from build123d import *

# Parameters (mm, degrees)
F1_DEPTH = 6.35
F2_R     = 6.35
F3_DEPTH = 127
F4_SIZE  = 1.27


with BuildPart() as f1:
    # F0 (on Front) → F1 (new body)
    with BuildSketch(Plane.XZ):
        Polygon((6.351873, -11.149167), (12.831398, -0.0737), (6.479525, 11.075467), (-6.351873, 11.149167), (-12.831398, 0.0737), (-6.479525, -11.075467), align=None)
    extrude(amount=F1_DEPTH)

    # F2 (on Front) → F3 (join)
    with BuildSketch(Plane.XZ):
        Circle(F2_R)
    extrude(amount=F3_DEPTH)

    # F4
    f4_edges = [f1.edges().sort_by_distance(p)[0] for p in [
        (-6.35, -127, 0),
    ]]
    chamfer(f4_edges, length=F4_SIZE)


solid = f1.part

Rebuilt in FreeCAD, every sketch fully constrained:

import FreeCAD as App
import Part
import Sketcher
from FreeCAD import Vector
Q = App.Units.Quantity


def edges_at(feature, points):
    """Names of the edges that pass closest to the given points."""
    edges = feature.Shape.Edges
    near = lambda p: min(range(len(edges)), key=lambda i: edges[i].distToShape(Part.Vertex(*p))[0])
    return sorted({f"Edge{near(p) + 1}" for p in points})

doc = App.newDocument("Part")
body = doc.addObject("PartDesign::Body", "Body")

sketch1 = body.newObject("Sketcher::SketchObject", "Sketch")
sketch1.AttachmentSupport = (doc.getObject("XZ_Plane"), [""])
sketch1.MapMode = "FlatFace"
sketch1.addGeometry([
    Part.LineSegment(Vector(6, -11, 0), Vector(13, 0, 0)),
    Part.LineSegment(Vector(13, 0, 0), Vector(6, 11, 0)),
    Part.LineSegment(Vector(6, 11, 0), Vector(-6, 11, 0)),
    Part.LineSegment(Vector(-6, 11, 0), Vector(-13, 0, 0)),
    Part.LineSegment(Vector(-13, 0, 0), Vector(-6, -11, 0)),
    Part.LineSegment(Vector(-6, -11, 0), Vector(6, -11, 0)),
], False)
sketch1.addConstraint([
    Sketcher.Constraint("Coincident", 0, 2, 1, 1),
    Sketcher.Constraint("Coincident", 1, 2, 2, 1),
    Sketcher.Constraint("Coincident", 2, 2, 3, 1),
    Sketcher.Constraint("Coincident", 3, 2, 4, 1),
    Sketcher.Constraint("Coincident", 4, 2, 5, 1),
    Sketcher.Constraint("Coincident", 5, 2, 0, 1),
    Sketcher.Constraint("Symmetric", 0, 2, 3, 2, -1, 1),
    Sketcher.Constraint("Symmetric", 1, 2, 4, 2, -1, 1),
    Sketcher.Constraint("Symmetric", 2, 2, 5, 2, -1, 1),
    Sketcher.Constraint("Equal", 0, 1),
    Sketcher.Constraint("Equal", 1, 2),
    Sketcher.Constraint("DistanceY", 0, 2, -1, 1, Q("0.0737 mm")),
    Sketcher.Constraint("DistanceY", 1, 2, 2, 2, Q("0.0737 mm")),
    Sketcher.Constraint("Distance", 0, Q("12.83161 mm")),
    Sketcher.Constraint("DistanceX", 2, 2, 0, 2, Q("19.183271 mm")),
])
pad1 = body.newObject("PartDesign::Pad", "Pad")
pad1.Profile = sketch1
pad1.Length = Q("0.25 in")

sketch2 = body.newObject("Sketcher::SketchObject", "Sketch001")
sketch2.AttachmentSupport = (doc.getObject("XZ_Plane"), [""])
sketch2.MapMode = "FlatFace"
sketch2.addGeometry(Part.Circle(Vector(0, 0, 0), Vector(0, 0, 1), 6), False)
sketch2.addConstraint([
    Sketcher.Constraint("Coincident", 0, 3, -1, 1),
    Sketcher.Constraint("Diameter", 0, Q("0.5 in")),
])
pad2 = body.newObject("PartDesign::Pad", "Pad001")
pad2.Profile = sketch2
pad2.Length = Q("5 in")
doc.recompute()

chamfer = body.newObject("PartDesign::Chamfer", "Chamfer")
chamfer.Base = (pad2, edges_at(pad2, [(-6.35, -127, 0)]))
chamfer.Size = Q("0.05 in")

doc.recompute()
